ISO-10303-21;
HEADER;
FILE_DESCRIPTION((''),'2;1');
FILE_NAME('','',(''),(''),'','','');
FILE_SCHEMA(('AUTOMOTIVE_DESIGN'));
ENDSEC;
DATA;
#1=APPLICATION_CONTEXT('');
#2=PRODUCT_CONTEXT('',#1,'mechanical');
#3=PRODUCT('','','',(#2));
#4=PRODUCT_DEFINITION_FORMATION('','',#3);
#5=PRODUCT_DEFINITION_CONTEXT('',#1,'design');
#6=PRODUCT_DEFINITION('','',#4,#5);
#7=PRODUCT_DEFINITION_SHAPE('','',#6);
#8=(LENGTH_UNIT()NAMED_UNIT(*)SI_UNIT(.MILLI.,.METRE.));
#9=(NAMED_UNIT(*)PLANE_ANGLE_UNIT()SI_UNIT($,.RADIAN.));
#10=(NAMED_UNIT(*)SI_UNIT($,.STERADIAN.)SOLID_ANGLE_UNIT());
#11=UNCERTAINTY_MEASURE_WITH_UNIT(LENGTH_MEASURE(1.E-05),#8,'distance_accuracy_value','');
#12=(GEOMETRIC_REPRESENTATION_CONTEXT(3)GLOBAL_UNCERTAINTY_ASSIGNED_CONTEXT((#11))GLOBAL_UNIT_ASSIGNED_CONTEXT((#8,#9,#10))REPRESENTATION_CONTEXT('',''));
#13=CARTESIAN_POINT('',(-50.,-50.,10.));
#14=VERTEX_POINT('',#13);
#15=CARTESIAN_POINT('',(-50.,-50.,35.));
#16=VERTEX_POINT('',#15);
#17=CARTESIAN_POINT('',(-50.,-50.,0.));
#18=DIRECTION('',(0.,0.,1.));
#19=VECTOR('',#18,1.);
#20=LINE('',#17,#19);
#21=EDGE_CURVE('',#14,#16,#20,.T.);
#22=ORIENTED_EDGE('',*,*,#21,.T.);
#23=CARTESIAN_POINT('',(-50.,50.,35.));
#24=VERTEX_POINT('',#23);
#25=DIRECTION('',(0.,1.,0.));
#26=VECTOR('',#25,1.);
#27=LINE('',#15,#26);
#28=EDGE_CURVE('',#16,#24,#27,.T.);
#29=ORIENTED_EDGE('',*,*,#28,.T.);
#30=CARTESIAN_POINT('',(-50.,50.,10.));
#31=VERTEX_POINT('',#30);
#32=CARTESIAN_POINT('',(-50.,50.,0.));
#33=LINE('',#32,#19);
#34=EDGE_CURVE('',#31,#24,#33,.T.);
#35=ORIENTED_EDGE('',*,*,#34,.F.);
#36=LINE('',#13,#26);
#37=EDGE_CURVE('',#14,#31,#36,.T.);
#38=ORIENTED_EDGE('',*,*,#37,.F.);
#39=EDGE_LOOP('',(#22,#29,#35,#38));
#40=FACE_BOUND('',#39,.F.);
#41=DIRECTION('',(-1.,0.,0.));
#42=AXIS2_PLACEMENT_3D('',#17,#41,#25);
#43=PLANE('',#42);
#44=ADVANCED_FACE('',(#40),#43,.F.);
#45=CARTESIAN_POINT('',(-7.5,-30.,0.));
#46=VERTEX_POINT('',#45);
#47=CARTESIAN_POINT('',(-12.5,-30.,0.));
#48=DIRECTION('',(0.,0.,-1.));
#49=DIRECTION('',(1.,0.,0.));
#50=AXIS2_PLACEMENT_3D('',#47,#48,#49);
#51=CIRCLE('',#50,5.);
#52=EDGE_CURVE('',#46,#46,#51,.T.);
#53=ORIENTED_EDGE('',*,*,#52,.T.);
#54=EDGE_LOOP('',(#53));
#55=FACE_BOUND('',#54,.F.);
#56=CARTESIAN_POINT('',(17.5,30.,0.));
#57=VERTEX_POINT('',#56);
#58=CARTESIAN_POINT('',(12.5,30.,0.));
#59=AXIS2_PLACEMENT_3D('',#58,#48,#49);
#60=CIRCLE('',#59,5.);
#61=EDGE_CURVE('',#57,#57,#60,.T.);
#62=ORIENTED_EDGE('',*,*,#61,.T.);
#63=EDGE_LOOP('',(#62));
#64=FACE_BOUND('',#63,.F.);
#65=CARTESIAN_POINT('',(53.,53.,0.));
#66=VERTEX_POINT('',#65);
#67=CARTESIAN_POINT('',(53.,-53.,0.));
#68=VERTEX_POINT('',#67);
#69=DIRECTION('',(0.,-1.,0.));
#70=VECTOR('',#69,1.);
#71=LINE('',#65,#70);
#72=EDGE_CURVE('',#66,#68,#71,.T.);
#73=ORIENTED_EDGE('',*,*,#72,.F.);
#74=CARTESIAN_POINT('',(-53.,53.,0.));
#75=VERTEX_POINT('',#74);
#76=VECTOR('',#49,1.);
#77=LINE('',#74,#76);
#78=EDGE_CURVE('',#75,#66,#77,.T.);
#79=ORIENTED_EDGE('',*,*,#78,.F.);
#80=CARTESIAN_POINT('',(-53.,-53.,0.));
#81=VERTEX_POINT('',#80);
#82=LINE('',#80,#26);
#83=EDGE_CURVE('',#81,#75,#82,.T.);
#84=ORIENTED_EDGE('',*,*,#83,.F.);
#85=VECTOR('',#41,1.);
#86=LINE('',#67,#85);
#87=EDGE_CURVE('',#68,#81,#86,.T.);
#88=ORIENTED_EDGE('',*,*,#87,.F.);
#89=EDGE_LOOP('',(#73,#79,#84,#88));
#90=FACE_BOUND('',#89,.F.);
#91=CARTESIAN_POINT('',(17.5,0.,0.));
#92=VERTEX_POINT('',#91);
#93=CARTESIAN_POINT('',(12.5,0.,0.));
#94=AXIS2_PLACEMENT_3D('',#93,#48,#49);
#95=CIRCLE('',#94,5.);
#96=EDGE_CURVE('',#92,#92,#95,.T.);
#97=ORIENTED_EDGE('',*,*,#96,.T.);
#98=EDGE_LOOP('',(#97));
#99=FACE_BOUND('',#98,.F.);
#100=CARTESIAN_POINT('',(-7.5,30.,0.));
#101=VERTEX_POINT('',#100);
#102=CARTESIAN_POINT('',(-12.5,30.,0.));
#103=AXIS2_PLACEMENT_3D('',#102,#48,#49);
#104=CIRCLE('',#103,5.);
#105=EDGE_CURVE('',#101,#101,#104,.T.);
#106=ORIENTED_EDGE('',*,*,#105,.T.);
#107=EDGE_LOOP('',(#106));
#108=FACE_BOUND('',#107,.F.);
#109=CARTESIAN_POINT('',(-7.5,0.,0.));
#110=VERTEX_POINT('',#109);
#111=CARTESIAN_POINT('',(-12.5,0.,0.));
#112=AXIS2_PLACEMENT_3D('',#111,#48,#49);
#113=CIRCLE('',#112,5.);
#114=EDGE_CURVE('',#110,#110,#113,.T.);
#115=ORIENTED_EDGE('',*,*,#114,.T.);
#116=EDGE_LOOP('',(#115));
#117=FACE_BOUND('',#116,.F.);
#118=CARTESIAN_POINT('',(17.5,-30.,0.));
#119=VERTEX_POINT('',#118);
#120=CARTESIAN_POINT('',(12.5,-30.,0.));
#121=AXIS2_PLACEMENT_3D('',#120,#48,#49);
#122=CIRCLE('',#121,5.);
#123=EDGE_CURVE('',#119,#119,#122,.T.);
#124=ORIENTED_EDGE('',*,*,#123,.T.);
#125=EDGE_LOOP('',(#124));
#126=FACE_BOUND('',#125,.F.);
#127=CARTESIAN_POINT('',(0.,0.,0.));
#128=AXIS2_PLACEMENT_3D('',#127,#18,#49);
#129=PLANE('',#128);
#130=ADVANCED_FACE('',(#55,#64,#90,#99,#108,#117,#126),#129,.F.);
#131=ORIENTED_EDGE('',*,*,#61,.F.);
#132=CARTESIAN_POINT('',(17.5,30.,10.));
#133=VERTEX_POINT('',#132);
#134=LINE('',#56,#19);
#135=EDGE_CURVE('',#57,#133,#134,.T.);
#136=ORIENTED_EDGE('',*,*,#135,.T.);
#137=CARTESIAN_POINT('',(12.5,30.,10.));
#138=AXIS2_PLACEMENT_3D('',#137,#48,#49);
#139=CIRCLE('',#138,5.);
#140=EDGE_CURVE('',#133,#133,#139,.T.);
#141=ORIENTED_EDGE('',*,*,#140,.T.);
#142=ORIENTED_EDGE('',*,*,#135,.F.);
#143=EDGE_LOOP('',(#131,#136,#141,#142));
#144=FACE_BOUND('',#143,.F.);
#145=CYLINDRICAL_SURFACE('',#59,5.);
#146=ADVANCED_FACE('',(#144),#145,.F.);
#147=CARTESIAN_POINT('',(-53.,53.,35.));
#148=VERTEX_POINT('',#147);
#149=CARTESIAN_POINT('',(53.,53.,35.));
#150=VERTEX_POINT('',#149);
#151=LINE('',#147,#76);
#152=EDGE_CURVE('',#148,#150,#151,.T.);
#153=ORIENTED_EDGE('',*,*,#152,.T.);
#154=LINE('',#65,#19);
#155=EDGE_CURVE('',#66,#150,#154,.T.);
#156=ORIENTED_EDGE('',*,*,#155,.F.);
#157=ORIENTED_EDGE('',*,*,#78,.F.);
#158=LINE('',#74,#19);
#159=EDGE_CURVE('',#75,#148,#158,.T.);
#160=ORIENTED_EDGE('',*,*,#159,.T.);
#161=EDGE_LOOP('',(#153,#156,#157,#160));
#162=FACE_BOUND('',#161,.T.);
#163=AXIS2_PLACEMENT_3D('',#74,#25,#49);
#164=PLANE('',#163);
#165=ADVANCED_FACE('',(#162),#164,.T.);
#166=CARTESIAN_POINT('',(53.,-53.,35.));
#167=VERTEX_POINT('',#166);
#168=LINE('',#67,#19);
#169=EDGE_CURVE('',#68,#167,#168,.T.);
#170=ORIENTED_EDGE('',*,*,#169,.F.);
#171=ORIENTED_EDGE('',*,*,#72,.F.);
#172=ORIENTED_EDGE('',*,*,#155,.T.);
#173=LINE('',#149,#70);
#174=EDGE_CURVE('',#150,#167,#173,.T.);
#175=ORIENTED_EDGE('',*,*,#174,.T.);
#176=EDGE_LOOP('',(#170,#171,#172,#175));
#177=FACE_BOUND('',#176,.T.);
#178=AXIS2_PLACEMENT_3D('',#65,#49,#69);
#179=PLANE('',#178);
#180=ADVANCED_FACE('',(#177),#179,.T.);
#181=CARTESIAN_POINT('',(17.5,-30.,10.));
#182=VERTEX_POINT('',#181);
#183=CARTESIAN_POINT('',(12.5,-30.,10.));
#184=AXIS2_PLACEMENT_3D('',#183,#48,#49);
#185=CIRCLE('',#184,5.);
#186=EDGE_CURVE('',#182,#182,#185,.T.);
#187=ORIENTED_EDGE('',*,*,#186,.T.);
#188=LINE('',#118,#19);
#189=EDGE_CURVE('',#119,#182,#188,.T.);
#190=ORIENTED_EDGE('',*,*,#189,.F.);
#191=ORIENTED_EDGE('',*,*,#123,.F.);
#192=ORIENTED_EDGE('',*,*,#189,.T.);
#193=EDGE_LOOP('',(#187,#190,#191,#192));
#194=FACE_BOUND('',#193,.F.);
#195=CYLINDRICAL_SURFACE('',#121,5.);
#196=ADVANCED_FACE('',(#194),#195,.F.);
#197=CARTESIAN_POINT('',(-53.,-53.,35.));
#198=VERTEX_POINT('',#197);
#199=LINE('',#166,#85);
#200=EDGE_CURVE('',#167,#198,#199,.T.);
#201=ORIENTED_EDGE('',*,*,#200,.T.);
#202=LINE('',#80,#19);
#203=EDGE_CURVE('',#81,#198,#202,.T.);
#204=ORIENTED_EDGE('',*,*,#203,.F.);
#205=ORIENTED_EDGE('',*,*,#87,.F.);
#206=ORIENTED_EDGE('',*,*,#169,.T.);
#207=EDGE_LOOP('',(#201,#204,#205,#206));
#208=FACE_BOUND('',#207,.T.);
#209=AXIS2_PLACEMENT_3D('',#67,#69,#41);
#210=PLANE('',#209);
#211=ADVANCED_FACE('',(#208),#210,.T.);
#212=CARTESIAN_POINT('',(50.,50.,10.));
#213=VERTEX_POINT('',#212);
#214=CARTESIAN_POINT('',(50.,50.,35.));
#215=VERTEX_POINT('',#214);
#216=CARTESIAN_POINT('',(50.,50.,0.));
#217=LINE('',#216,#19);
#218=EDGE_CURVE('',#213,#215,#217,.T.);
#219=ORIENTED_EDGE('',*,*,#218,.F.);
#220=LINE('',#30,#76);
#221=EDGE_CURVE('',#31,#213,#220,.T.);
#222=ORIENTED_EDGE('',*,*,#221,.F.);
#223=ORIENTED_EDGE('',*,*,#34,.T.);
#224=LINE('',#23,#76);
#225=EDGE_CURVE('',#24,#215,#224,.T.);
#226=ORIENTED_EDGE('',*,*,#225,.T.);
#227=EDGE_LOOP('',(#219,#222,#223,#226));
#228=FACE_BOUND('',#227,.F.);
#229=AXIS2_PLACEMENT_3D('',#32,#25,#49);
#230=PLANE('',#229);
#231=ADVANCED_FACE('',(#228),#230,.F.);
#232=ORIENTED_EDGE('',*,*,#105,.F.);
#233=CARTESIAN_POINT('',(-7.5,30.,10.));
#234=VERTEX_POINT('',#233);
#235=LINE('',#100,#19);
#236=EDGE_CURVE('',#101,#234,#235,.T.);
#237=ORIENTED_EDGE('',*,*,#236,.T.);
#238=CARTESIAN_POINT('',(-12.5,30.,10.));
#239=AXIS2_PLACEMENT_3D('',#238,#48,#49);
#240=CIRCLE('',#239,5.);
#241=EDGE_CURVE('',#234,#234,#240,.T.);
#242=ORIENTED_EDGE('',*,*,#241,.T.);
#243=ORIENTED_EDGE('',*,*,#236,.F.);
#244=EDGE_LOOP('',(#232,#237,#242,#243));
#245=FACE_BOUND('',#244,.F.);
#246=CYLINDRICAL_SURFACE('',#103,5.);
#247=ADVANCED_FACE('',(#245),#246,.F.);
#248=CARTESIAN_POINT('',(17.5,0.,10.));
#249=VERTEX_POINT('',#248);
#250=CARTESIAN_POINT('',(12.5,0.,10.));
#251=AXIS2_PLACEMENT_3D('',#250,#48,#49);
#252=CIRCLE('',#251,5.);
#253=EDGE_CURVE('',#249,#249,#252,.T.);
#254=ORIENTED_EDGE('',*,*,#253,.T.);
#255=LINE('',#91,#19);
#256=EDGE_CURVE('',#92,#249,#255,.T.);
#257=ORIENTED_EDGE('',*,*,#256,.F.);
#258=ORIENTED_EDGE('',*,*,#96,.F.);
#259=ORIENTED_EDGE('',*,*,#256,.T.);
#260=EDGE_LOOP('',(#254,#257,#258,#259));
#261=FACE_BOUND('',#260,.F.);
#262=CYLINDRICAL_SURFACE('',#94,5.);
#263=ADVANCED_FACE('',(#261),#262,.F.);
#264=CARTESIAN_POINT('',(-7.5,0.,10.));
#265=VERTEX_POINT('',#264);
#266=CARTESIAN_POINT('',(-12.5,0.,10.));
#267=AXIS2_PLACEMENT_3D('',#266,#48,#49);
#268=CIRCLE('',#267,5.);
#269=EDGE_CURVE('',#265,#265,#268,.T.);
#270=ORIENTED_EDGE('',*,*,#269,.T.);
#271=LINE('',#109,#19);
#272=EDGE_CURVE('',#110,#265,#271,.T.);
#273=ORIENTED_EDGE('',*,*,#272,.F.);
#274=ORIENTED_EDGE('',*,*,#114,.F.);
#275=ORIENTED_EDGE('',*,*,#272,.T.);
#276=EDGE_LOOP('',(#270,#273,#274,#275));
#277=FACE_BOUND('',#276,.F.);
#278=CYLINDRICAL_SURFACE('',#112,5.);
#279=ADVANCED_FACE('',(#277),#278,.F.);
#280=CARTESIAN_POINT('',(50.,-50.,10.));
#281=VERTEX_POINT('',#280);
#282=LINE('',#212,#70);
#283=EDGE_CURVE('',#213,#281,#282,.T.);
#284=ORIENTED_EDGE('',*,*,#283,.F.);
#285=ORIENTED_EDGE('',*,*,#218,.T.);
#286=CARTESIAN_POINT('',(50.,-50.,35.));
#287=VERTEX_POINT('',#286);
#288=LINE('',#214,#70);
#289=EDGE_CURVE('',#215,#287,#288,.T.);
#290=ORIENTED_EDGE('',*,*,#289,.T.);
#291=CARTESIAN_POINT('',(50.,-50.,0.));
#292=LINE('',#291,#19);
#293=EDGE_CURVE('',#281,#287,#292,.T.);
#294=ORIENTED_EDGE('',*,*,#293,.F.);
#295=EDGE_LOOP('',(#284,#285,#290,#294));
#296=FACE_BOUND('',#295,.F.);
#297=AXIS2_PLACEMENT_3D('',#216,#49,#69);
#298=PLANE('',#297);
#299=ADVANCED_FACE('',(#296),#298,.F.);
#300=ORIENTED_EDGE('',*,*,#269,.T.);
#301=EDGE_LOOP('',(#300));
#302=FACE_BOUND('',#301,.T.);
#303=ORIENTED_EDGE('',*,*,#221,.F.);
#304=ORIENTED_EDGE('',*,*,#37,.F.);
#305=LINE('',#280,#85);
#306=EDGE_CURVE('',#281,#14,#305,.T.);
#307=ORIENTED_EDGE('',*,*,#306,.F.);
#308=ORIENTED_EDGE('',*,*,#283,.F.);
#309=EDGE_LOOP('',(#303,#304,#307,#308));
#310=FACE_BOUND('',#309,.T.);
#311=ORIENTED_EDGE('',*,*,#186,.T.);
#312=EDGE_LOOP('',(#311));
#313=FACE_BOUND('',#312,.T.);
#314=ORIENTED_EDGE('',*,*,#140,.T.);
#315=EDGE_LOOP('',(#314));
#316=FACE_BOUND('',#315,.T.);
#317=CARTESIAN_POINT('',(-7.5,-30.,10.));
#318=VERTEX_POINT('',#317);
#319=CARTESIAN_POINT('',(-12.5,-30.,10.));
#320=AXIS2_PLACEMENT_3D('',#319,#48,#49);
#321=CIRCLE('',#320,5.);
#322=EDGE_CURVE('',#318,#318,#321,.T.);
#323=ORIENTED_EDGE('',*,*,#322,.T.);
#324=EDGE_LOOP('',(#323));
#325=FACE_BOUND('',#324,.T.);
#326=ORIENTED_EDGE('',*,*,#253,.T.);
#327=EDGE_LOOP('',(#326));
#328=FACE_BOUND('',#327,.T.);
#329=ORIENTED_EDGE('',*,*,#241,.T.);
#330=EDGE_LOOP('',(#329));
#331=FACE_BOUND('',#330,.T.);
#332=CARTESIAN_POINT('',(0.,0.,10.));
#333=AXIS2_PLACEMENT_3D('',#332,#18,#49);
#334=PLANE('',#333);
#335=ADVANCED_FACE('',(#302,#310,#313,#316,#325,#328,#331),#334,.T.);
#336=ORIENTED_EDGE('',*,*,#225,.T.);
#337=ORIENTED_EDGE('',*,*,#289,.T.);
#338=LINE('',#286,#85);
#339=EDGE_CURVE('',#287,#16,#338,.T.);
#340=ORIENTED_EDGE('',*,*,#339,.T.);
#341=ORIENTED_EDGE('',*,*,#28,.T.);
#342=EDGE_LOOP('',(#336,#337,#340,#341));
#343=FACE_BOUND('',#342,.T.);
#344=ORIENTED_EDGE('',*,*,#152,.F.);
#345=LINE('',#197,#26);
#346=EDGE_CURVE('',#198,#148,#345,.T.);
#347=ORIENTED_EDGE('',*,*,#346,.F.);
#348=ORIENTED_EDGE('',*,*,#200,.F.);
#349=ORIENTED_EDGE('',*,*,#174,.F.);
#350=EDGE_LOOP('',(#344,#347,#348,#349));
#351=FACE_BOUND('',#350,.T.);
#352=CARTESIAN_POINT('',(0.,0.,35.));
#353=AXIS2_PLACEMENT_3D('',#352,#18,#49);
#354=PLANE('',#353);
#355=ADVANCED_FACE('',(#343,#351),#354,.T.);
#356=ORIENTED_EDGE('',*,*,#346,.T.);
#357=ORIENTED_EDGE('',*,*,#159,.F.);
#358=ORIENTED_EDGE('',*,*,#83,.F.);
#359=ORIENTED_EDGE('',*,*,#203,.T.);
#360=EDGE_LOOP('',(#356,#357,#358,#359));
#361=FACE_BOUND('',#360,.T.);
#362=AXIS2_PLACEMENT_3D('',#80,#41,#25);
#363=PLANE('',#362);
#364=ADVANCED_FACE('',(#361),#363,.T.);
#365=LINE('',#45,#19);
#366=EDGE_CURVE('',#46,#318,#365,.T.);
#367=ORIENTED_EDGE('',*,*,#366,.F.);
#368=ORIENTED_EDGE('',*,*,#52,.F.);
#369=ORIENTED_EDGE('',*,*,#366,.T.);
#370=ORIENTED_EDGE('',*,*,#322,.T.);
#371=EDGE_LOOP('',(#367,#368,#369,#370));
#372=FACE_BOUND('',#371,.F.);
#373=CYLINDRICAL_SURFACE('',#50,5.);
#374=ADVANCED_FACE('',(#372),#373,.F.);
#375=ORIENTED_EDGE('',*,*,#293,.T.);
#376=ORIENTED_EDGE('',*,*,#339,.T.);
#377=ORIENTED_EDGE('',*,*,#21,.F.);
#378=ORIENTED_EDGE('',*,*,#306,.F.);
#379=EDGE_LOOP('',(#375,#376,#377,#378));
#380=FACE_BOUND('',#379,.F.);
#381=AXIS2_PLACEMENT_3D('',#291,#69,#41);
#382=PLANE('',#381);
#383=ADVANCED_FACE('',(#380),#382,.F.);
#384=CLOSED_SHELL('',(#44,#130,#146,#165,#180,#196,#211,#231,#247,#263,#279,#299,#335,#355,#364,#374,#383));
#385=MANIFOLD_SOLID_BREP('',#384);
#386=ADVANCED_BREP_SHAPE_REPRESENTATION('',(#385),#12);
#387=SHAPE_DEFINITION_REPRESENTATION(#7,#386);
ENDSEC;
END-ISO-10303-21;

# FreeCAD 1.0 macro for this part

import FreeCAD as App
import Part
import Sketcher
Q = App.Units.Quantity

doc = App.newDocument("Part")
body = doc.addObject("PartDesign::Body", "Body")

# Sketch on XY plane
sketch1 = body.newObject("Sketcher::SketchObject", "Sketch")
sketch1.AttachmentSupport = (doc.getObject("XY_Plane"), [""])
sketch1.MapMode = "FlatFace"
sketch1.addGeometry([
    Part.LineSegment(App.Vector(53, -53, 0), App.Vector(53, 53, 0)),  # 0
    Part.LineSegment(App.Vector(53, 53, 0), App.Vector(-53, 53, 0)),  # 1
    Part.LineSegment(App.Vector(-53, 53, 0), App.Vector(-53, -53, 0)),  # 2
    Part.LineSegment(App.Vector(-53, -53, 0), App.Vector(53, -53, 0)),  # 3
    Part.LineSegment(App.Vector(-50, -50, 0), App.Vector(-50, 50, 0)),  # 4
    Part.LineSegment(App.Vector(-50, 50, 0), App.Vector(50, 50, 0)),  # 5
    Part.LineSegment(App.Vector(50, 50, 0), App.Vector(50, -50, 0)),  # 6
    Part.LineSegment(App.Vector(50, -50, 0), App.Vector(-50, -50, 0)),  # 7
], False)
sketch1.addConstraint([
    Sketcher.Constraint("Coincident", 0, 2, 1, 1),
    Sketcher.Constraint("Coincident", 1, 2, 2, 1),
    Sketcher.Constraint("Coincident", 2, 2, 3, 1),
    Sketcher.Constraint("Coincident", 3, 2, 0, 1),
    Sketcher.Constraint("Coincident", 4, 2, 5, 1),
    Sketcher.Constraint("Coincident", 5, 2, 6, 1),
    Sketcher.Constraint("Coincident", 6, 2, 7, 1),
    Sketcher.Constraint("Coincident", 7, 2, 4, 1),
    Sketcher.Constraint("Vertical", 0),
    Sketcher.Constraint("Horizontal", 1),
    Sketcher.Constraint("Vertical", 2),
    Sketcher.Constraint("Horizontal", 3),
    Sketcher.Constraint("Vertical", 4),
    Sketcher.Constraint("Horizontal", 5),
    Sketcher.Constraint("Vertical", 6),
    Sketcher.Constraint("Horizontal", 7),
    Sketcher.Constraint("Symmetric", 0, 2, 2, 2, -1, 1),
    Sketcher.Constraint("Symmetric", 4, 2, 6, 2, -1, 1),
    Sketcher.Constraint("Equal", 3, 0),
    Sketcher.Constraint("Equal", 7, 4),
    Sketcher.Constraint("DistanceX", 1, 2, 4, 2, Q("3 mm")),
    Sketcher.Constraint("DistanceX", 1, 2, 1, 1, Q("106 mm")),
])
pad1 = body.newObject("PartDesign::Pad", "Pad")
pad1.Profile = sketch1
pad1.Length = 35

# Sketch on XY plane
sketch2 = body.newObject("Sketcher::SketchObject", "Sketch001")
sketch2.AttachmentSupport = (doc.getObject("XY_Plane"), [""])
sketch2.MapMode = "FlatFace"
sketch2.addGeometry([
    Part.LineSegment(App.Vector(50, 50, 0), App.Vector(-50, 50, 0)),
    Part.LineSegment(App.Vector(-50, 50, 0), App.Vector(-50, -50, 0)),
    Part.LineSegment(App.Vector(-50, -50, 0), App.Vector(50, -50, 0)),
    Part.LineSegment(App.Vector(50, -50, 0), App.Vector(50, 50, 0)),
], False)
sketch2.addConstraint([
    Sketcher.Constraint("Coincident", 0, 2, 1, 1),
    Sketcher.Constraint("Coincident", 1, 2, 2, 1),
    Sketcher.Constraint("Coincident", 2, 2, 3, 1),
    Sketcher.Constraint("Coincident", 3, 2, 0, 1),
    Sketcher.Constraint("Horizontal", 0),
    Sketcher.Constraint("Vertical", 1),
    Sketcher.Constraint("Horizontal", 2),
    Sketcher.Constraint("Vertical", 3),
    Sketcher.Constraint("Symmetric", 0, 2, 2, 2, -1, 1),
    Sketcher.Constraint("Equal", 2, 1),
    Sketcher.Constraint("DistanceX", 0, 2, 0, 1, Q("100 mm")),
])
pad2 = body.newObject("PartDesign::Pad", "Pad001")
pad2.Profile = sketch2
pad2.Length = 10

# Sketch on XY plane
sketch3 = body.newObject("Sketcher::SketchObject", "Sketch002")
sketch3.AttachmentSupport = (doc.getObject("XY_Plane"), [""])
sketch3.MapMode = "FlatFace"
sketch3.addGeometry([
    Part.Circle(App.Vector(-12, 0, 0), App.Vector(0, 0, 1), 5),  # 0
    Part.Circle(App.Vector(12, 0, 0), App.Vector(0, 0, 1), 5),  # 1
    Part.Circle(App.Vector(-12, -30, 0), App.Vector(0, 0, 1), 5),  # 2
    Part.Circle(App.Vector(12, -30, 0), App.Vector(0, 0, 1), 5),  # 3
    Part.Circle(App.Vector(-12, 30, 0), App.Vector(0, 0, 1), 5),  # 4
    Part.Circle(App.Vector(12, 30, 0), App.Vector(0, 0, 1), 5),  # 5
], False)
sketch3.addConstraint([
    Sketcher.Constraint("Equal", 0, 1),
    Sketcher.Constraint("Equal", 1, 2),
    Sketcher.Constraint("Equal", 2, 3),
    Sketcher.Constraint("Equal", 3, 4),
    Sketcher.Constraint("Equal", 4, 5),
    Sketcher.Constraint("Symmetric", 0, 3, 1, 3, -1, 1),
    Sketcher.Constraint("Symmetric", 3, 3, 4, 3, -1, 1),
    Sketcher.Constraint("Symmetric", 2, 3, 5, 3, -1, 1),
    Sketcher.Constraint("Symmetric", 2, 3, 3, 3, -2),
    Sketcher.Constraint("PointOnObject", 0, 3, -1),
    Sketcher.Constraint("Vertical", 0, 3, 2, 3),
    Sketcher.Constraint("Diameter", 0, Q("10 mm")),
    Sketcher.Constraint("DistanceY", 2, 3, -1, 1, Q("30 mm")),
    Sketcher.Constraint("DistanceX", 0, 3, 1, 3, Q("25 mm")),
])
pocket1 = body.newObject("PartDesign::Pocket", "Pocket")
pocket1.Profile = sketch3
pocket1.Length = 10
pocket1.Reversed = True

doc.recompute()
